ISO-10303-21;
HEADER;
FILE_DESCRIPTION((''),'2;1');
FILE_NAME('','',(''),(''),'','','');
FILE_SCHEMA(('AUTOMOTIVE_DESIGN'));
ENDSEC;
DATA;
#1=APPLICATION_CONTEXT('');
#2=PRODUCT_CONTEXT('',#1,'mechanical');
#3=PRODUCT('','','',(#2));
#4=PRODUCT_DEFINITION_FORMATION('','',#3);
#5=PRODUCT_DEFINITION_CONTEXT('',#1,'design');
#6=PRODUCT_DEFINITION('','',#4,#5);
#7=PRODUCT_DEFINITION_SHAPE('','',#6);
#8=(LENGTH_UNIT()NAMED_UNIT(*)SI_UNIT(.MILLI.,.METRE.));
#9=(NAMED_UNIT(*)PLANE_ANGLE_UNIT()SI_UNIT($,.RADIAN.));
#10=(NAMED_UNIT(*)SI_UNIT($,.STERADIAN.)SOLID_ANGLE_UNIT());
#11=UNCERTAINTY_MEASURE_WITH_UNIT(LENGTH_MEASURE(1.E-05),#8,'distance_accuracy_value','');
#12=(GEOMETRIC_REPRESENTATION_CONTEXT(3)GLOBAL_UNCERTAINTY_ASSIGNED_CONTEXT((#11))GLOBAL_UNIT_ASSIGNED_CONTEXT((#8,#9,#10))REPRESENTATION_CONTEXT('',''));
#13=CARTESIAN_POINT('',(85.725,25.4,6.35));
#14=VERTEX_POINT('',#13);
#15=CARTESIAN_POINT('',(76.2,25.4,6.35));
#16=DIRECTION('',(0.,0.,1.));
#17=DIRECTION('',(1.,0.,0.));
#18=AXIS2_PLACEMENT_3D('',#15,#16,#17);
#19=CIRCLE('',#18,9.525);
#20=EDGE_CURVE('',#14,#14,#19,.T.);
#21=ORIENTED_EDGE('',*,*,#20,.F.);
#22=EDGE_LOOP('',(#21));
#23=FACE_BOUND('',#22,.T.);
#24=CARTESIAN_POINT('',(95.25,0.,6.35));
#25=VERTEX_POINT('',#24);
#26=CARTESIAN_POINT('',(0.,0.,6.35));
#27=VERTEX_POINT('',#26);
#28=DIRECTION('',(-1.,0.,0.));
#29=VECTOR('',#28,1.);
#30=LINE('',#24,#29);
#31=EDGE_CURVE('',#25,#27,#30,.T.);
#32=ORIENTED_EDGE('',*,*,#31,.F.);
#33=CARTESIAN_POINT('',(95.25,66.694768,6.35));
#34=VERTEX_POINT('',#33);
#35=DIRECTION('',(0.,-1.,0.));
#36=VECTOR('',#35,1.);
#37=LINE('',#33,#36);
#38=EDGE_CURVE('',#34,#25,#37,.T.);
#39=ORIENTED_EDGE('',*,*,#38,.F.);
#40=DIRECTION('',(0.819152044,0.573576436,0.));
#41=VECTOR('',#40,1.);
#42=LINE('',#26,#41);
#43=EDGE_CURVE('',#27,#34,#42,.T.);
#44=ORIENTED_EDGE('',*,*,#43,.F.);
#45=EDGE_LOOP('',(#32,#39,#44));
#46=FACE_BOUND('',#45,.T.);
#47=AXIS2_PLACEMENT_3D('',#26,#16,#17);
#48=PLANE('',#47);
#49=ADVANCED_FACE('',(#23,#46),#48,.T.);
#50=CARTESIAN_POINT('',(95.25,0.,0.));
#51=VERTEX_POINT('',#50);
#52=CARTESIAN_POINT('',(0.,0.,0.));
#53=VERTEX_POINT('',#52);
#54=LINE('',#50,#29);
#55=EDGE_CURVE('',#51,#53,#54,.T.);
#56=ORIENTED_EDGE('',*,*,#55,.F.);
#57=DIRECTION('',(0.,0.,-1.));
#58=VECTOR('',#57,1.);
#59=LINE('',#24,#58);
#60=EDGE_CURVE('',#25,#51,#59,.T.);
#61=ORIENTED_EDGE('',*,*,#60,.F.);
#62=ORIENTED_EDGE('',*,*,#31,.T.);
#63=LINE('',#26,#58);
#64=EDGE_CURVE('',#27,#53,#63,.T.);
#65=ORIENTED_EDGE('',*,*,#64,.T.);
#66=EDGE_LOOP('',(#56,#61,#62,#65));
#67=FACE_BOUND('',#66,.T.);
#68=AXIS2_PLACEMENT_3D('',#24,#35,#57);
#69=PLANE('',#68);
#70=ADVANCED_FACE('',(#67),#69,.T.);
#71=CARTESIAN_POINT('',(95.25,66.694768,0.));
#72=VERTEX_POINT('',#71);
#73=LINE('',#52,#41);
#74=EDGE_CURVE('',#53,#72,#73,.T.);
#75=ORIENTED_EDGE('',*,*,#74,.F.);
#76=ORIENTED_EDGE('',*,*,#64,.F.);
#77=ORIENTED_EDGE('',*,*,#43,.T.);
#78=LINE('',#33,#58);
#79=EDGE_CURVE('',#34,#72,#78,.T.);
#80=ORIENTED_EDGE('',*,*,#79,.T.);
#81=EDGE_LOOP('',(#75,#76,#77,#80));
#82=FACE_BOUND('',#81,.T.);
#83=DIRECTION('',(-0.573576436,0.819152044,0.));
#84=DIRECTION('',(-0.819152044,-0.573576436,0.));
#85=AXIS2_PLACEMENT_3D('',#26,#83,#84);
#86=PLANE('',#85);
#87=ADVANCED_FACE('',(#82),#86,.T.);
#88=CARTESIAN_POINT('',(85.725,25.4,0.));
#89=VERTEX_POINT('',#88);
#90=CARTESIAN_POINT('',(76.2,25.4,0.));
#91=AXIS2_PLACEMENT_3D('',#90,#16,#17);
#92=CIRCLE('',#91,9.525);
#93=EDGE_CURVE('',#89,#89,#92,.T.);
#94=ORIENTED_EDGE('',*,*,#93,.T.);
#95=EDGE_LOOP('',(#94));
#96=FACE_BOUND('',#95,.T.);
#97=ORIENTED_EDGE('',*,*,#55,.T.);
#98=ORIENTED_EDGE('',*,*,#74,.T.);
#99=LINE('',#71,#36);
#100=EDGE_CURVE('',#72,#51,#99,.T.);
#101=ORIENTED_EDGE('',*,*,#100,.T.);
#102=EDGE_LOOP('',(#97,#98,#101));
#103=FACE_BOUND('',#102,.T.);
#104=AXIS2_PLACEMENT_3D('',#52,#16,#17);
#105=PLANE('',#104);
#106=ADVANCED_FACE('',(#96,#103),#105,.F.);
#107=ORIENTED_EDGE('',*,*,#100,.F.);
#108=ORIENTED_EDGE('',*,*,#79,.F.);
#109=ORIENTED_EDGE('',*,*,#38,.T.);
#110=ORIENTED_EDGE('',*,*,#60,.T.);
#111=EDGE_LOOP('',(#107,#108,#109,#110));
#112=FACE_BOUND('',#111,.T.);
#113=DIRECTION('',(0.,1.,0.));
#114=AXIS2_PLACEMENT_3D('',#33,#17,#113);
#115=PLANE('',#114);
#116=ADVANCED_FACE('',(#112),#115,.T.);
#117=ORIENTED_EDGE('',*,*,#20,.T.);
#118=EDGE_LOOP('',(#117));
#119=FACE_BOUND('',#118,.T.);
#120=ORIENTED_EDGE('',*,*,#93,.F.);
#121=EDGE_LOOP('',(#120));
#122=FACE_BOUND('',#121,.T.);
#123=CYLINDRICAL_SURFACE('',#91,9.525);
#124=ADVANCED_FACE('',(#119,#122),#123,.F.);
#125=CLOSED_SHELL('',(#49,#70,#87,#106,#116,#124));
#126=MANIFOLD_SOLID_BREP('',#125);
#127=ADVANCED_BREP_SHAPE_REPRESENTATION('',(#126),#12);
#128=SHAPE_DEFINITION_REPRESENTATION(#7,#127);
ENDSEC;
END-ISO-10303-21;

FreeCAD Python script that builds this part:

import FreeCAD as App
import Part
import Sketcher
Q = App.Units.Quantity


def add_polygon(sketch, points):
    """Adds a closed chain of lines whose ends are joined by coincident constraints."""
    first, n = sketch.GeometryCount, len(points)
    for a, b in zip(points, points[1:] + points[:1]):
        sketch.addGeometry(Part.LineSegment(App.Vector(*a, 0), App.Vector(*b, 0)), False)
    for i in range(n):
        sketch.addConstraint(Sketcher.Constraint("Coincident", first + i, 2, first + (i + 1) % n, 1))

doc = App.newDocument("Part")
body = doc.addObject("PartDesign::Body", "Body")

# Sketch on XY plane
sketch1 = body.newObject("Sketcher::SketchObject", "Sketch")
sketch1.AttachmentSupport = (doc.getObject("XY_Plane"), [""])
sketch1.MapMode = "FlatFace"
add_polygon(sketch1, [(95, 67), (0, 0), (95, 0)])  # lines 0-2
sketch1.addConstraint([
    Sketcher.Constraint("Horizontal", 1),
    Sketcher.Constraint("Vertical", 2),
    Sketcher.Constraint("Coincident", 0, 2, -1, 1),
    Sketcher.Constraint("Angle", 0, Q("-145 deg")),
    Sketcher.Constraint("DistanceX", 1, 1, 1, 2, Q("3.75 in")),
])
pad1 = body.newObject("PartDesign::Pad", "Pad")
pad1.Profile = sketch1
pad1.Length = Q("0.25 in")

# Sketch on XY plane
sketch2 = body.newObject("Sketcher::SketchObject", "Sketch001")
sketch2.AttachmentSupport = (doc.getObject("XY_Plane"), [""])
sketch2.MapMode = "FlatFace"
sketch2.AttachmentOffset = App.Placement(App.Vector(0, 0, 0.25 * 25.4), App.Rotation())
sketch2.addGeometry(Part.Circle(App.Vector(76, 25, 0), App.Vector(0, 0, 1), 10), False)
sketch2.addConstraint([
    Sketcher.Constraint("Diameter", 0, Q("0.75 in")),
    Sketcher.Constraint("DistanceX", -1, 1, 0, 3, Q("3 in")),
    Sketcher.Constraint("DistanceY", -1, 1, 0, 3, Q("1 in")),
])
pocket1 = body.newObject("PartDesign::Pocket", "Pocket")
pocket1.Profile = sketch2
pocket1.Length = Q("0.25 in")

doc.recompute()
